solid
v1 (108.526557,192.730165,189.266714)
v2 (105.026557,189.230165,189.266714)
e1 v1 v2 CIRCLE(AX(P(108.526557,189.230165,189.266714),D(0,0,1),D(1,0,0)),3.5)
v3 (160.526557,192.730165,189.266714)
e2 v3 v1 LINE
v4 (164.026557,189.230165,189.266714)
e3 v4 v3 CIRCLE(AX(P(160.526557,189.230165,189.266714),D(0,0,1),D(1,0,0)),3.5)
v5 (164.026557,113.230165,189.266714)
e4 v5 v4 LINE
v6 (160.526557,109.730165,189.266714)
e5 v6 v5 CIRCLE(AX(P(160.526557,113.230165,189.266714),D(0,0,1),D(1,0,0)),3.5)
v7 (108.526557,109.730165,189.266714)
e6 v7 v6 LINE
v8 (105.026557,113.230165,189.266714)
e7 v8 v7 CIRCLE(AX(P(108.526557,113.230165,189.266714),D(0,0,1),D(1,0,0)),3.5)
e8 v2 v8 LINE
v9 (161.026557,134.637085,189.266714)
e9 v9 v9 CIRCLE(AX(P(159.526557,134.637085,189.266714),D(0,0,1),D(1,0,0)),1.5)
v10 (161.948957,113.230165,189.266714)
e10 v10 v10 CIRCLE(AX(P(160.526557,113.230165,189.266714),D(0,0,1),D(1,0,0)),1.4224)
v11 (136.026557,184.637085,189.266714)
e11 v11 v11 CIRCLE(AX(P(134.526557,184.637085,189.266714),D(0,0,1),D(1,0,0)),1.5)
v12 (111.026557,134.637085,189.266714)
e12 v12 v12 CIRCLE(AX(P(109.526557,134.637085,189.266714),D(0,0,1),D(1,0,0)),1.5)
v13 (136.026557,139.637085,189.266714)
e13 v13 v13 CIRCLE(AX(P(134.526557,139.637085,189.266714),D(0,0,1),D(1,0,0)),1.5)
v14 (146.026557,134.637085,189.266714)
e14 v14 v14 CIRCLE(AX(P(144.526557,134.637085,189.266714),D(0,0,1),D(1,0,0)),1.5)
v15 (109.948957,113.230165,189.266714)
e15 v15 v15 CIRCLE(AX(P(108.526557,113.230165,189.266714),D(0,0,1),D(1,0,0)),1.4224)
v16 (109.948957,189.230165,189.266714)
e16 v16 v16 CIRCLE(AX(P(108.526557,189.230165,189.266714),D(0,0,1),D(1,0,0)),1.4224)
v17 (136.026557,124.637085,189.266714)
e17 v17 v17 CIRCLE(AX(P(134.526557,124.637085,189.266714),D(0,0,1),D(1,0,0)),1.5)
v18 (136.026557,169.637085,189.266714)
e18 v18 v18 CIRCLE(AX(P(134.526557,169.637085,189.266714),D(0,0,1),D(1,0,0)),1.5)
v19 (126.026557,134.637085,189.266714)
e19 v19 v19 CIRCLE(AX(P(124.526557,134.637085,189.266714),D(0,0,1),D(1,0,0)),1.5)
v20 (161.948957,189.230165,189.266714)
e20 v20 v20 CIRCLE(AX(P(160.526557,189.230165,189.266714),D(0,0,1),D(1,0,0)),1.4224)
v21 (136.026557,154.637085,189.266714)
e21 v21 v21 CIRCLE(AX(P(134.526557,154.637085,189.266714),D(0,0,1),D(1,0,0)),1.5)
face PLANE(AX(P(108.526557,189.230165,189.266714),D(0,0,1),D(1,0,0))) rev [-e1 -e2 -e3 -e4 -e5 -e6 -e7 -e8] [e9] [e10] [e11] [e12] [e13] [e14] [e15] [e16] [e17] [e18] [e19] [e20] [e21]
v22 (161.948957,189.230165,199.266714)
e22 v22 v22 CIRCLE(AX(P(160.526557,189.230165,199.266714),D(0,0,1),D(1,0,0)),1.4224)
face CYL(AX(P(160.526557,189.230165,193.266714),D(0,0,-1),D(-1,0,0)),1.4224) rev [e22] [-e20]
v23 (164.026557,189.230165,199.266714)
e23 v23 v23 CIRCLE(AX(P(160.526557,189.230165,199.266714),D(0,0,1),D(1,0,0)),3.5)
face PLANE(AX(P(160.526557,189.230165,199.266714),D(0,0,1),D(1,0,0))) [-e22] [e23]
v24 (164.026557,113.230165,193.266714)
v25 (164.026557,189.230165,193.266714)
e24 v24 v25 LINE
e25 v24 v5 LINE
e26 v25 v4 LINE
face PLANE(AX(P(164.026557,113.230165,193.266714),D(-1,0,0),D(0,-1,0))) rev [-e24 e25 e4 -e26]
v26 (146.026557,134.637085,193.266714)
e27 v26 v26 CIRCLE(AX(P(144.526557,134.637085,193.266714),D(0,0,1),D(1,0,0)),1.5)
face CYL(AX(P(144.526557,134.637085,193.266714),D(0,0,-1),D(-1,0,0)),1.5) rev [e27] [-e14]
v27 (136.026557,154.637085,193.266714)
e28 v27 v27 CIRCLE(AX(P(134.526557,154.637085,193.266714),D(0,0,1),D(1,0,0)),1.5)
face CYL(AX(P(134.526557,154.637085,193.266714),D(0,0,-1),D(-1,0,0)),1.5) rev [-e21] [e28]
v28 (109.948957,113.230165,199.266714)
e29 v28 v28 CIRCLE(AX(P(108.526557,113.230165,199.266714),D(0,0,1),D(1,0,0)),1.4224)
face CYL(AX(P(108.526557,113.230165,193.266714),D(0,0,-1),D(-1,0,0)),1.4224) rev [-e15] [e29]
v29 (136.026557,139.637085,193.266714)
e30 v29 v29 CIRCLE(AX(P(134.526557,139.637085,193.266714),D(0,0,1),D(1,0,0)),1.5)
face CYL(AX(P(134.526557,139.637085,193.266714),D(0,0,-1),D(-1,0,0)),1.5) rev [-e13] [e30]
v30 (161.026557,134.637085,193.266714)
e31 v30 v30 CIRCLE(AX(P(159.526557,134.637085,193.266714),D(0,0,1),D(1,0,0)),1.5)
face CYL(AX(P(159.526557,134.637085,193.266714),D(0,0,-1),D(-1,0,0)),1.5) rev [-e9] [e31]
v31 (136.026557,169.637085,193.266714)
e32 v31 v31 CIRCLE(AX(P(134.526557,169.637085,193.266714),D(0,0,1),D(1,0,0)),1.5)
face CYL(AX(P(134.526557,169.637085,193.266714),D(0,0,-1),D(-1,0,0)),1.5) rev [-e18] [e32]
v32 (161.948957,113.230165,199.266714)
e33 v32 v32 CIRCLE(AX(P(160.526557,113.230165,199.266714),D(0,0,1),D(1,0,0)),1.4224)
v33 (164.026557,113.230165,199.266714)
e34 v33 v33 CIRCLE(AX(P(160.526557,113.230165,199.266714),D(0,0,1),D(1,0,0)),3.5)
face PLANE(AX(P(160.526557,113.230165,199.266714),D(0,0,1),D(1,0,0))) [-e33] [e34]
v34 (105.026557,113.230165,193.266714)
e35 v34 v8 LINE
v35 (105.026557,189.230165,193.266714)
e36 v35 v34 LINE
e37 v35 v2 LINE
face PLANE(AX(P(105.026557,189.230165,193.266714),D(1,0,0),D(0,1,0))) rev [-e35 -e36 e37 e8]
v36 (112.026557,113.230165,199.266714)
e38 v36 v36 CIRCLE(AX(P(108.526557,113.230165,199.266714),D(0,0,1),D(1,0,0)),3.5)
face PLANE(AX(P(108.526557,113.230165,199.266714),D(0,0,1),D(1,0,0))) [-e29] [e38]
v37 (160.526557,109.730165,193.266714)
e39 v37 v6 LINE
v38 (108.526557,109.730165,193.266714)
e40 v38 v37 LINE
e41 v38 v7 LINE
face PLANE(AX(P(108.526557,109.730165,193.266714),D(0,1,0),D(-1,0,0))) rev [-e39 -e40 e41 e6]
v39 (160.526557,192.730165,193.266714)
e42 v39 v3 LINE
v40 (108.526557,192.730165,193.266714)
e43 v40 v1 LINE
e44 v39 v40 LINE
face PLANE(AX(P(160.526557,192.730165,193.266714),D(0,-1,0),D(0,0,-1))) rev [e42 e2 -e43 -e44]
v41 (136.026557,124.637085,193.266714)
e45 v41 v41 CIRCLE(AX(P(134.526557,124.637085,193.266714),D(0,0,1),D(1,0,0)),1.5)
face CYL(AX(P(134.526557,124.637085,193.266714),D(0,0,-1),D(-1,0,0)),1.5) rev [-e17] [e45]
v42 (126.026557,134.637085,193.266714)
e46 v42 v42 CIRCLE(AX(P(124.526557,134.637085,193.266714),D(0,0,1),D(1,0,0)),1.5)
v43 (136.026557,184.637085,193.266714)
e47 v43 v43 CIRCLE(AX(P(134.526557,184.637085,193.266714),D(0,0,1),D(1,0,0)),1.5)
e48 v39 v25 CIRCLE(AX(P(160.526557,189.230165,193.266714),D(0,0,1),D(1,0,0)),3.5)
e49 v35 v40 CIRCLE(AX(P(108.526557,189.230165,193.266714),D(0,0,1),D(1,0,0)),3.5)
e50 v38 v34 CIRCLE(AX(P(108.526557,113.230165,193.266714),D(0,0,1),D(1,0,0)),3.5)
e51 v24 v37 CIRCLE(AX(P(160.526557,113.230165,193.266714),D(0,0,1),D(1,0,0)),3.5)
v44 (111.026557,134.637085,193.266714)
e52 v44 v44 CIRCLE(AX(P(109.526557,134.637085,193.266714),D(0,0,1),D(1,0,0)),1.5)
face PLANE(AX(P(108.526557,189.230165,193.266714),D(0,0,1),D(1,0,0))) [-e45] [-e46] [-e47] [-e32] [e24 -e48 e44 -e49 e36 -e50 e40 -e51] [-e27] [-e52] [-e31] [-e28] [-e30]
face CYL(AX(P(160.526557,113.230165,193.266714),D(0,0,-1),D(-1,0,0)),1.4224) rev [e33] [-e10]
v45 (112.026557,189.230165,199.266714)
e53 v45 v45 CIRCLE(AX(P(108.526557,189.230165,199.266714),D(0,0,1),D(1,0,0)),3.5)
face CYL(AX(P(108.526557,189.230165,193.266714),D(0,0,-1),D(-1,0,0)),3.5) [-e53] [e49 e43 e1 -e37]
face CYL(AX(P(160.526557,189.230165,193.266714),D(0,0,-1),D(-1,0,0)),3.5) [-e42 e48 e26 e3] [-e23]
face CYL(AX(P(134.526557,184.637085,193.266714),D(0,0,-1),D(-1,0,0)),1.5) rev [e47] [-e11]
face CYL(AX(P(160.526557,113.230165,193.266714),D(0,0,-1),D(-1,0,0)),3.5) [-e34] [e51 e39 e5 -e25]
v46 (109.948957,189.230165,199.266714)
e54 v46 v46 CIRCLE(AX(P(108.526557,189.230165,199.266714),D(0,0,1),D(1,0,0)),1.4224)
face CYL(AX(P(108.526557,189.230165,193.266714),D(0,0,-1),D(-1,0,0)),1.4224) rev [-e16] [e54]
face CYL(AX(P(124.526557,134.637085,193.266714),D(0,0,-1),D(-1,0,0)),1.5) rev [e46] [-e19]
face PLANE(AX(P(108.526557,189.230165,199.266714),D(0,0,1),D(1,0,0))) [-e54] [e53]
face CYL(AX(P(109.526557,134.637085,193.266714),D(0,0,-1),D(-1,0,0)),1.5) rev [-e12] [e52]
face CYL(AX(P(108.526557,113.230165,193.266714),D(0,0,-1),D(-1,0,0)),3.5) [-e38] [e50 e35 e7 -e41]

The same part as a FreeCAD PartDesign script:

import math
import FreeCAD as App
import Part
import Sketcher

V = App.Vector

doc = App.newDocument("Part")
body = doc.addObject("PartDesign::Body", "Body")

sketch1 = doc.addObject("Sketcher::SketchObject", "Sketch")
body.addObject(sketch1)
sketch1.AttachmentSupport = (doc.XY_Plane, [""])
sketch1.MapMode = "FlatFace"
sketch1.AttachmentOffset = App.Placement(V(0, 0, 189.266714), App.Rotation())
sketch1.addGeometry(Part.LineSegment(V(108.5, 109.7, 0), V(160.5, 109.7, 0)), False)
sketch1.addGeometry(Part.ArcOfCircle(Part.Circle(V(160.5, 113.2, 0), V(0, 0, 1), 3.5), math.radians(-90), math.radians(0)), False)
sketch1.addGeometry(Part.LineSegment(V(164, 113.2, 0), V(164, 189.2, 0)), False)
sketch1.addGeometry(Part.ArcOfCircle(Part.Circle(V(160.5, 189.2, 0), V(0, 0, 1), 3.5), math.radians(0), math.radians(90)), False)
sketch1.addGeometry(Part.LineSegment(V(160.5, 192.7, 0), V(108.5, 192.7, 0)), False)
sketch1.addGeometry(Part.ArcOfCircle(Part.Circle(V(108.5, 189.2, 0), V(0, 0, 1), 3.5), math.radians(90), math.radians(180)), False)
sketch1.addGeometry(Part.LineSegment(V(105, 189.2, 0), V(105, 113.2, 0)), False)
sketch1.addGeometry(Part.ArcOfCircle(Part.Circle(V(108.5, 113.2, 0), V(0, 0, 1), 3.5), math.radians(180), math.radians(270)), False)
sketch1.addGeometry(Part.Circle(V(108.5, 113.2, 0), V(0, 0, 1), 1.4), False)
sketch1.addGeometry(Part.Circle(V(134.5, 124.6, 0), V(0, 0, 1), 1.5), False)
sketch1.addGeometry(Part.Circle(V(109.5, 134.6, 0), V(0, 0, 1), 1.5), False)
sketch1.addGeometry(Part.Circle(V(124.5, 134.6, 0), V(0, 0, 1), 1.5), False)
sketch1.addGeometry(Part.Circle(V(134.5, 139.6, 0), V(0, 0, 1), 1.5), False)
sketch1.addGeometry(Part.Circle(V(160.5, 113.2, 0), V(0, 0, 1), 1.4), False)
sketch1.addGeometry(Part.Circle(V(144.5, 134.6, 0), V(0, 0, 1), 1.5), False)
sketch1.addGeometry(Part.Circle(V(159.5, 134.6, 0), V(0, 0, 1), 1.5), False)
sketch1.addGeometry(Part.Circle(V(134.5, 154.6, 0), V(0, 0, 1), 1.5), False)
sketch1.addGeometry(Part.Circle(V(134.5, 169.6, 0), V(0, 0, 1), 1.5), False)
sketch1.addGeometry(Part.Circle(V(108.5, 189.2, 0), V(0, 0, 1), 1.4), False)
sketch1.addGeometry(Part.Circle(V(134.5, 184.6, 0), V(0, 0, 1), 1.5), False)
sketch1.addGeometry(Part.Circle(V(160.5, 189.2, 0), V(0, 0, 1), 1.4), False)
sketch1.addConstraint(Sketcher.Constraint("Tangent", 0, 2, 1, 1))
sketch1.addConstraint(Sketcher.Constraint("Tangent", 1, 2, 2, 1))
sketch1.addConstraint(Sketcher.Constraint("Tangent", 2, 2, 3, 1))
sketch1.addConstraint(Sketcher.Constraint("Tangent", 3, 2, 4, 1))
sketch1.addConstraint(Sketcher.Constraint("Tangent", 4, 2, 5, 1))
sketch1.addConstraint(Sketcher.Constraint("Tangent", 5, 2, 6, 1))
sketch1.addConstraint(Sketcher.Constraint("Tangent", 6, 2, 7, 1))
sketch1.addConstraint(Sketcher.Constraint("Tangent", 7, 2, 0, 1))
sketch1.addConstraint(Sketcher.Constraint("Horizontal", 0))
sketch1.addConstraint(Sketcher.Constraint("Vertical", 2))
sketch1.addConstraint(Sketcher.Constraint("Horizontal", 4))
sketch1.addConstraint(Sketcher.Constraint("Vertical", 6))
sketch1.addConstraint(Sketcher.Constraint("Coincident", 8, 3, 7, 3))
sketch1.addConstraint(Sketcher.Constraint("Coincident", 13, 3, 1, 3))
sketch1.addConstraint(Sketcher.Constraint("Coincident", 18, 3, 5, 3))
sketch1.addConstraint(Sketcher.Constraint("Coincident", 20, 3, 3, 3))
sketch1.addConstraint(Sketcher.Constraint("Equal", 1, 3))
sketch1.addConstraint(Sketcher.Constraint("Equal", 3, 5))
sketch1.addConstraint(Sketcher.Constraint("Equal", 5, 7))
sketch1.addConstraint(Sketcher.Constraint("Equal", 9, 10))
sketch1.addConstraint(Sketcher.Constraint("Equal", 10, 11))
sketch1.addConstraint(Sketcher.Constraint("Equal", 11, 12))
sketch1.addConstraint(Sketcher.Constraint("Equal", 8, 13))
sketch1.addConstraint(Sketcher.Constraint("Equal", 12, 14))
sketch1.addConstraint(Sketcher.Constraint("Equal", 14, 15))
sketch1.addConstraint(Sketcher.Constraint("Equal", 15, 16))
sketch1.addConstraint(Sketcher.Constraint("Equal", 16, 17))
sketch1.addConstraint(Sketcher.Constraint("Equal", 13, 18))
sketch1.addConstraint(Sketcher.Constraint("Equal", 17, 19))
sketch1.addConstraint(Sketcher.Constraint("Equal", 18, 20))
sketch1.addConstraint(Sketcher.Constraint("Horizontal", 10, 3, 11, 3))
sketch1.addConstraint(Sketcher.Constraint("Horizontal", 11, 3, 14, 3))
sketch1.addConstraint(Sketcher.Constraint("Horizontal", 14, 3, 15, 3))
sketch1.addConstraint(Sketcher.Constraint("Vertical", 9, 3, 12, 3))
sketch1.addConstraint(Sketcher.Constraint("Vertical", 12, 3, 16, 3))
sketch1.addConstraint(Sketcher.Constraint("Vertical", 16, 3, 17, 3))
sketch1.addConstraint(Sketcher.Constraint("Vertical", 17, 3, 19, 3))
sketch1.addConstraint(Sketcher.Constraint("Diameter", 9, 3.0))
sketch1.addConstraint(Sketcher.Constraint("Radius", 1, 3.5))
sketch1.addConstraint(Sketcher.Constraint("DistanceX", 0, 1, 0, 2, 52.0))
sketch1.addConstraint(Sketcher.Constraint("DistanceY", 2, 1, 2, 2, 76.0))
sketch1.addConstraint(Sketcher.Constraint("DistanceX", 8, 3, 9, 3, 26.0))
sketch1.addConstraint(Sketcher.Constraint("DistanceX", 8, 3, 10, 3, 1.0))
sketch1.addConstraint(Sketcher.Constraint("DistanceY", 9, 3, 10, 3, 10.0))
sketch1.addConstraint(Sketcher.Constraint("DistanceX", 11, 3, 9, 3, 10.0))
sketch1.addConstraint(Sketcher.Constraint("DistanceY", 11, 3, 12, 3, 5.0))
sketch1.addConstraint(Sketcher.Constraint("DistanceX", 12, 3, 14, 3, 10.0))
sketch1.addConstraint(Sketcher.Constraint("DistanceX", 14, 3, 15, 3, 15.0))
sketch1.addConstraint(Sketcher.Constraint("DistanceY", 12, 3, 16, 3, 15.0))
sketch1.addConstraint(Sketcher.Constraint("DistanceY", 16, 3, 17, 3, 15.0))
sketch1.addConstraint(Sketcher.Constraint("DistanceY", 17, 3, 19, 3, 15.0))
sketch1.addConstraint(Sketcher.Constraint("Diameter", 8, 2.8448))
sketch1.addConstraint(Sketcher.Constraint("DistanceY", 8, 3, 9, 3, 11.40692))
sketch1.addConstraint(Sketcher.Constraint("DistanceX", -1, 1, 1, 3, 160.526557))
sketch1.addConstraint(Sketcher.Constraint("DistanceY", -1, 1, 1, 3, 113.230165))
pad1 = doc.addObject("PartDesign::Pad", "Pad")
body.addObject(pad1)
pad1.Profile = sketch1
pad1.Length = 4

sketch2 = doc.addObject("Sketcher::SketchObject", "Sketch001")
body.addObject(sketch2)
sketch2.AttachmentSupport = (doc.XY_Plane, [""])
sketch2.MapMode = "FlatFace"
sketch2.AttachmentOffset = App.Placement(V(0, 0, 193.266714), App.Rotation())
sketch2.addGeometry(Part.Circle(V(108.5, 189.2, 0), V(0, 0, 1), 3.5), False)
sketch2.addGeometry(Part.Circle(V(108.5, 189.2, 0), V(0, 0, 1), 1.4), False)
sketch2.addGeometry(Part.Circle(V(160.5, 189.2, 0), V(0, 0, 1), 3.5), False)
sketch2.addGeometry(Part.Circle(V(160.5, 189.2, 0), V(0, 0, 1), 1.4), False)
sketch2.addGeometry(Part.Circle(V(108.5, 113.2, 0), V(0, 0, 1), 3.5), False)
sketch2.addGeometry(Part.Circle(V(108.5, 113.2, 0), V(0, 0, 1), 1.4), False)
sketch2.addGeometry(Part.Circle(V(160.5, 113.2, 0), V(0, 0, 1), 3.5), False)
sketch2.addGeometry(Part.Circle(V(160.5, 113.2, 0), V(0, 0, 1), 1.4), False)
sketch2.addConstraint(Sketcher.Constraint("Coincident", 1, 3, 0, 3))
sketch2.addConstraint(Sketcher.Constraint("Coincident", 3, 3, 2, 3))
sketch2.addConstraint(Sketcher.Constraint("Coincident", 5, 3, 4, 3))
sketch2.addConstraint(Sketcher.Constraint("Coincident", 7, 3, 6, 3))
sketch2.addConstraint(Sketcher.Constraint("Equal", 0, 2))
sketch2.addConstraint(Sketcher.Constraint("Equal", 1, 3))
sketch2.addConstraint(Sketcher.Constraint("Equal", 2, 4))
sketch2.addConstraint(Sketcher.Constraint("Equal", 3, 5))
sketch2.addConstraint(Sketcher.Constraint("Equal", 4, 6))
sketch2.addConstraint(Sketcher.Constraint("Equal", 5, 7))
sketch2.addConstraint(Sketcher.Constraint("Horizontal", 1, 3, 2, 3))
sketch2.addConstraint(Sketcher.Constraint("Horizontal", 5, 3, 6, 3))
sketch2.addConstraint(Sketcher.Constraint("Vertical", 1, 3, 4, 3))
sketch2.addConstraint(Sketcher.Constraint("Vertical", 3, 3, 6, 3))
sketch2.addConstraint(Sketcher.Constraint("Diameter", 0, 7.0))
sketch2.addConstraint(Sketcher.Constraint("DistanceX", 0, 3, 2, 3, 52.0))
sketch2.addConstraint(Sketcher.Constraint("DistanceY", 4, 3, 0, 3, 76.0))
sketch2.addConstraint(Sketcher.Constraint("Diameter", 1, 2.8448))
sketch2.addConstraint(Sketcher.Constraint("DistanceX", -1, 1, 0, 3, 108.526557))
sketch2.addConstraint(Sketcher.Constraint("DistanceY", -1, 1, 0, 3, 189.230165))
pad2 = doc.addObject("PartDesign::Pad", "Pad001")
body.addObject(pad2)
pad2.Profile = sketch2
pad2.Length = 6

doc.recompute()
